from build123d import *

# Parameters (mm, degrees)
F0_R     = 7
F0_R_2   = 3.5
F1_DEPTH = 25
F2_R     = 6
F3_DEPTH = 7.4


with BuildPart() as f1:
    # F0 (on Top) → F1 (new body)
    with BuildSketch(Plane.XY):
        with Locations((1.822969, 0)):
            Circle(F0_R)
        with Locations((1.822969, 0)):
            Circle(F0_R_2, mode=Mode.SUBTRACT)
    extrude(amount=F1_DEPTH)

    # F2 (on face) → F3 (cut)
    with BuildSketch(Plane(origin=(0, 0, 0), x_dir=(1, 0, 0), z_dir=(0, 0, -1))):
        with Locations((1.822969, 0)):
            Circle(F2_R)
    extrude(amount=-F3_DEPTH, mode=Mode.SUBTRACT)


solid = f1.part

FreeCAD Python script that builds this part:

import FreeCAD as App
import Part
import Sketcher

V = App.Vector

doc = App.newDocument("Part")
body = doc.addObject("PartDesign::Body", "Body")

sketch1 = body.newObject("Sketcher::SketchObject", "Sketch")
sketch1.AttachmentSupport = (doc.getObject("XY_Plane"), [""])
sketch1.MapMode = "FlatFace"
sketch1.addGeometry(Part.Circle(V(1.8, 0, 0), V(0, 0, 1), 7), False)
sketch1.addGeometry(Part.Circle(V(1.8, 0, 0), V(0, 0, 1), 3.5), False)
sketch1.addConstraint(Sketcher.Constraint("Coincident", 1, 3, 0, 3))
sketch1.addConstraint(Sketcher.Constraint("PointOnObject", 0, 3, -1))
sketch1.addConstraint(Sketcher.Constraint("Diameter", 0, 14.0))
sketch1.addConstraint(Sketcher.Constraint("Diameter", 1, 7.0))
sketch1.addConstraint(Sketcher.Constraint("DistanceX", -1, 1, 0, 3, 1.822969))
pad1 = body.newObject("PartDesign::Pad", "Pad")
pad1.Profile = sketch1
pad1.Length = 25

sketch2 = body.newObject("Sketcher::SketchObject", "Sketch001")
sketch2.AttachmentSupport = (doc.getObject("XY_Plane"), [""])
sketch2.MapMode = "FlatFace"
sketch2.addGeometry(Part.Circle(V(2, 0, 0), V(0, 0, 1), 6), False)
sketch2.addConstraint(Sketcher.Constraint("PointOnObject", 0, 3, -1))
sketch2.addConstraint(Sketcher.Constraint("Diameter", 0, 12.0))
sketch2.addConstraint(Sketcher.Constraint("DistanceX", -1, 1, 0, 3, 1.822969))
pocket1 = body.newObject("PartDesign::Pocket", "Pocket")
pocket1.Profile = sketch2
pocket1.Length = 7.4
pocket1.Reversed = True

doc.recompute()
